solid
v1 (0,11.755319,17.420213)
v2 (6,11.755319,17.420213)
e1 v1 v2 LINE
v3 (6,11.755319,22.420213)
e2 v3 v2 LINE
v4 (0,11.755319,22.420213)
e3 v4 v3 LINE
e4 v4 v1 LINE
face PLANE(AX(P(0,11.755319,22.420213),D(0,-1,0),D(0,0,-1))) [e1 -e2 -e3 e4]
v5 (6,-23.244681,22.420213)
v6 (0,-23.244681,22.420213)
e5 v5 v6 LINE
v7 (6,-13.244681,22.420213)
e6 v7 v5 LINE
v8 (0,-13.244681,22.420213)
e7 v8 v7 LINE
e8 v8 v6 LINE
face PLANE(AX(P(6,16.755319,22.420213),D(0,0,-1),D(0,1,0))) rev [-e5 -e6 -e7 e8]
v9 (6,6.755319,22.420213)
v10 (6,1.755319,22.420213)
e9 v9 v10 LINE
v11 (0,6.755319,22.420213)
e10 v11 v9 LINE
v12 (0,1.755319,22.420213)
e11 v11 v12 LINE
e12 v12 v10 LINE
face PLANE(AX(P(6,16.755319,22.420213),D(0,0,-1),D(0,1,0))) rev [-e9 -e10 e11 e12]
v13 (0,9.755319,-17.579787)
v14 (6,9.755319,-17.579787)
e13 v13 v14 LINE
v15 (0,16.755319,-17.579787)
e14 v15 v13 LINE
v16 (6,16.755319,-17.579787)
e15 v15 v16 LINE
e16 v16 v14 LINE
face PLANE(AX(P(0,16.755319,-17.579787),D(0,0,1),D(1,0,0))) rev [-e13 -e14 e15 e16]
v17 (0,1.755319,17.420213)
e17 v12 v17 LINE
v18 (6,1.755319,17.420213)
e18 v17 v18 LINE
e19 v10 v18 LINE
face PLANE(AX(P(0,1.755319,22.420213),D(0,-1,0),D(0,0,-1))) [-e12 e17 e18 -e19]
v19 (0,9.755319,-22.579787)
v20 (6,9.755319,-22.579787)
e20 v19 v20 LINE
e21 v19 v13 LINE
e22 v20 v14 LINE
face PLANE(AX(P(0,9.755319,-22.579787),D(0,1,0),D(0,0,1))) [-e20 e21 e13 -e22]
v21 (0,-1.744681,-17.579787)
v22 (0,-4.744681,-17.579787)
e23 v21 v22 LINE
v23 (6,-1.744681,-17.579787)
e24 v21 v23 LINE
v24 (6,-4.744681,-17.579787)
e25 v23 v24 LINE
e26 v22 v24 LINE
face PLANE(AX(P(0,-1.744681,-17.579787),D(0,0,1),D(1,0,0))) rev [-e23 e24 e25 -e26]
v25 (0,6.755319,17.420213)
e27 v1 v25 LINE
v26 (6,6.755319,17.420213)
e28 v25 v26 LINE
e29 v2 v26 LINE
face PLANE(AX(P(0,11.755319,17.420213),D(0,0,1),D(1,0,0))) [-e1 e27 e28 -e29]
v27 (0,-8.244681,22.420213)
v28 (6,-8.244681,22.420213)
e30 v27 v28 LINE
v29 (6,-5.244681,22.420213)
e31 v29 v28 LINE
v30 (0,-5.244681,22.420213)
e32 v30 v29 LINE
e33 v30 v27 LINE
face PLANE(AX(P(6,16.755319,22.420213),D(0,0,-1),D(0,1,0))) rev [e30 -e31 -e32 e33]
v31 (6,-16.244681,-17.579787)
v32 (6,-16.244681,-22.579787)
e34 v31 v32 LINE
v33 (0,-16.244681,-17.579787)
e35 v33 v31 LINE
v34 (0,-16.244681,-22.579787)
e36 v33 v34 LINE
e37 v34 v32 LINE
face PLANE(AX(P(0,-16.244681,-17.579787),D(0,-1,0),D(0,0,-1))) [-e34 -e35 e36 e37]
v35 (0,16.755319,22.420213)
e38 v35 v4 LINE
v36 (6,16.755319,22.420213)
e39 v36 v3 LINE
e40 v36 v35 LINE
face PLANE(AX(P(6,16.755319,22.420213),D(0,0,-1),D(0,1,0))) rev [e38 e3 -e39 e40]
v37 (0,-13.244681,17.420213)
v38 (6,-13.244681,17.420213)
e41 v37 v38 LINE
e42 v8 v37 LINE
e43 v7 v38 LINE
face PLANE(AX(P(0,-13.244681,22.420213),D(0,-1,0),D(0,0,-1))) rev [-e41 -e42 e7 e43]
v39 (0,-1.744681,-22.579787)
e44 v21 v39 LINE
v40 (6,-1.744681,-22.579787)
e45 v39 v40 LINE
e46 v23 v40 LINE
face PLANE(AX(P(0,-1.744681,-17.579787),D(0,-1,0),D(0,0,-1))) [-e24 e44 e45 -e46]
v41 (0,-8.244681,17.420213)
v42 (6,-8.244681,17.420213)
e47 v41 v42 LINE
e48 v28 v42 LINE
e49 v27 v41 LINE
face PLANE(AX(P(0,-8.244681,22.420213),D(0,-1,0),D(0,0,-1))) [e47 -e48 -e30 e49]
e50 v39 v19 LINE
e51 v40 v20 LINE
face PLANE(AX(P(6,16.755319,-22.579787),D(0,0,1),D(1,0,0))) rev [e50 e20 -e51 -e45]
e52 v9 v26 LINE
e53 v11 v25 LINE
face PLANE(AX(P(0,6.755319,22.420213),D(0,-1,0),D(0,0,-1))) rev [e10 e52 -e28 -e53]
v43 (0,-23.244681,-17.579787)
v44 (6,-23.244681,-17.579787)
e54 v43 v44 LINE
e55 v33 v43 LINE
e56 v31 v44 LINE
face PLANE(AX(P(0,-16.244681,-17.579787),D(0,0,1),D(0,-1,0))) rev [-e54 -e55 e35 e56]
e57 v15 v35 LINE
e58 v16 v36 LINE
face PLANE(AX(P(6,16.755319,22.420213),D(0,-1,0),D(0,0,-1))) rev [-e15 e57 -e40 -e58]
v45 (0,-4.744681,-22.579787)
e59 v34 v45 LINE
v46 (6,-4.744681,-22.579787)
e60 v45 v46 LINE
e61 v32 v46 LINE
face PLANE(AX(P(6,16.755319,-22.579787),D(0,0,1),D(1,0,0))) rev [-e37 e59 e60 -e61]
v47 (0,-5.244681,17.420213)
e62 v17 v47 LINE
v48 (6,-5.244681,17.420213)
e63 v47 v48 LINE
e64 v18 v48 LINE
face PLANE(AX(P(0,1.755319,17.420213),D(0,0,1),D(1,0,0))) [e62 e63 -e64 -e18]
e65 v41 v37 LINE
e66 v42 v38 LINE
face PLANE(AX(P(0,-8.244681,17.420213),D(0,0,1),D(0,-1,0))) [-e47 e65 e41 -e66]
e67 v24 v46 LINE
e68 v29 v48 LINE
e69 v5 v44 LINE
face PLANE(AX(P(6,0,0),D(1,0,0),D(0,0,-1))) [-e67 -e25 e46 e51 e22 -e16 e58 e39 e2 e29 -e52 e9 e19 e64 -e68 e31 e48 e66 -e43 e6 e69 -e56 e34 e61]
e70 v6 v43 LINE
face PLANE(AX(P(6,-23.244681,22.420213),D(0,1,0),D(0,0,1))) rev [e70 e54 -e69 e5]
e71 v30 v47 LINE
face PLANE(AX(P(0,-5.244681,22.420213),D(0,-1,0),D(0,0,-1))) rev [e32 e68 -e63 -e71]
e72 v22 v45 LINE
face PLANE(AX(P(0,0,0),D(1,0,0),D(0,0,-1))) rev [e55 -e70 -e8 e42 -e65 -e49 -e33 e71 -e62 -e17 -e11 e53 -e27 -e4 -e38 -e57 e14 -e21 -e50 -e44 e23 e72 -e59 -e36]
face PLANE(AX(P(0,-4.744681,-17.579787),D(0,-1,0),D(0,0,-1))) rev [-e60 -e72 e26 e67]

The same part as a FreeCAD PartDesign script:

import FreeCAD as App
import Part
import Sketcher

V = App.Vector
Q = App.Units.Quantity


def add_polygon(sketch, points):
    """Adds a closed chain of lines whose ends are joined by coincident constraints."""
    first, n = sketch.GeometryCount, len(points)
    for a, b in zip(points, points[1:] + points[:1]):
        sketch.addGeometry(Part.LineSegment(App.Vector(*a, 0), App.Vector(*b, 0)), False)
    for i in range(n):
        sketch.addConstraint(Sketcher.Constraint("Coincident", first + i, 2, first + (i + 1) % n, 1))

doc = App.newDocument("Part")
body = doc.addObject("PartDesign::Body", "Body")

# Sketch on YZ plane
sketch1 = doc.addObject("Sketcher::SketchObject", "Sketch")
body.addObject(sketch1)
sketch1.AttachmentSupport = (doc.YZ_Plane, [""])
sketch1.MapMode = "FlatFace"
add_polygon(sketch1, [(17, 22), (-23, 22), (-23, -23), (17, -23)])  # lines 0-3
sketch1.addConstraint(Sketcher.Constraint("Horizontal", 0))
sketch1.addConstraint(Sketcher.Constraint("Vertical", 1))
sketch1.addConstraint(Sketcher.Constraint("Horizontal", 2))
sketch1.addConstraint(Sketcher.Constraint("Vertical", 3))
sketch1.addConstraint(Sketcher.Constraint("DistanceX", 0, 2, 0, 1, Q("40 mm")))
sketch1.addConstraint(Sketcher.Constraint("DistanceY", 1, 2, 1, 1, Q("45 mm")))
sketch1.addConstraint(Sketcher.Constraint("DistanceX", 0, 2, -1, 1, Q("23.244681 mm")))
sketch1.addConstraint(Sketcher.Constraint("DistanceY", -1, 1, 0, 2, Q("22.420213 mm")))
pad1 = doc.addObject("PartDesign::Pad", "Pad")
body.addObject(pad1)
pad1.Profile = sketch1
pad1.Length = 6

# Sketch on YZ plane
sketch2 = doc.addObject("Sketcher::SketchObject", "Sketch001")
body.addObject(sketch2)
sketch2.AttachmentSupport = (doc.YZ_Plane, [""])
sketch2.MapMode = "FlatFace"
sketch2.AttachmentOffset = App.Placement(V(0, 0, 6), App.Rotation())
add_polygon(sketch2, [(12, 22), (7, 22), (7, 17), (12, 17)])  # lines 0-3
add_polygon(sketch2, [(2, 22), (-5, 22), (-5, 17), (2, 17)])  # lines 4-7
add_polygon(sketch2, [(-8, 22), (-13, 22), (-13, 17), (-8, 17)])  # lines 8-11
sketch2.addConstraint(Sketcher.Constraint("Horizontal", 0))
sketch2.addConstraint(Sketcher.Constraint("Vertical", 1))
sketch2.addConstraint(Sketcher.Constraint("Horizontal", 2))
sketch2.addConstraint(Sketcher.Constraint("Vertical", 3))
sketch2.addConstraint(Sketcher.Constraint("Horizontal", 4))
sketch2.addConstraint(Sketcher.Constraint("Vertical", 5))
sketch2.addConstraint(Sketcher.Constraint("Horizontal", 6))
sketch2.addConstraint(Sketcher.Constraint("Vertical", 7))
sketch2.addConstraint(Sketcher.Constraint("Horizontal", 8))
sketch2.addConstraint(Sketcher.Constraint("Vertical", 9))
sketch2.addConstraint(Sketcher.Constraint("Horizontal", 10))
sketch2.addConstraint(Sketcher.Constraint("Vertical", 11))
sketch2.addConstraint(Sketcher.Constraint("Horizontal", 3, 2, 4, 2))
sketch2.addConstraint(Sketcher.Constraint("Horizontal", 2, 2, 5, 2))
sketch2.addConstraint(Sketcher.Constraint("Horizontal", 7, 2, 8, 2))
sketch2.addConstraint(Sketcher.Constraint("Horizontal", 6, 2, 9, 2))
sketch2.addConstraint(Sketcher.Constraint("Equal", 2, 8))
sketch2.addConstraint(Sketcher.Constraint("Equal", 10, 1))
sketch2.addConstraint(Sketcher.Constraint("DistanceX", 0, 2, 0, 1, Q("5 mm")))
sketch2.addConstraint(Sketcher.Constraint("DistanceX", 4, 2, 4, 1, Q("7 mm")))
sketch2.addConstraint(Sketcher.Constraint("DistanceX", 4, 2, 0, 2, Q("12 mm")))
sketch2.addConstraint(Sketcher.Constraint("DistanceX", 8, 2, 4, 2, Q("8 mm")))
sketch2.addConstraint(Sketcher.Constraint("DistanceX", -1, 1, 0, 2, Q("6.755319 mm")))
sketch2.addConstraint(Sketcher.Constraint("DistanceY", -1, 1, 0, 2, Q("22.420213 mm")))
pocket1 = doc.addObject("PartDesign::Pocket", "Pocket")
body.addObject(pocket1)
pocket1.Profile = sketch2
pocket1.Length = 6

# Sketch on YZ plane
sketch3 = doc.addObject("Sketcher::SketchObject", "Sketch002")
body.addObject(sketch3)
sketch3.AttachmentSupport = (doc.YZ_Plane, [""])
sketch3.MapMode = "FlatFace"
sketch3.AttachmentOffset = App.Placement(V(0, 0, 6), App.Rotation())
add_polygon(sketch3, [(16.8, -17.6), (9.8, -17.6), (9.8, -22.6), (16.8, -22.6)])  # lines 0-3
add_polygon(sketch3, [(-1.7, -17.6), (-4.7, -17.6), (-4.7, -22.6), (-1.7, -22.6)])  # lines 4-7
add_polygon(sketch3, [(-16.2, -17.6), (-23.2, -17.6), (-23.2, -22.6), (-16.2, -22.6)])  # lines 8-11
sketch3.addConstraint(Sketcher.Constraint("Horizontal", 0))
sketch3.addConstraint(Sketcher.Constraint("Vertical", 1))
sketch3.addConstraint(Sketcher.Constraint("Horizontal", 2))
sketch3.addConstraint(Sketcher.Constraint("Vertical", 3))
sketch3.addConstraint(Sketcher.Constraint("Horizontal", 4))
sketch3.addConstraint(Sketcher.Constraint("Vertical", 5))
sketch3.addConstraint(Sketcher.Constraint("Horizontal", 6))
sketch3.addConstraint(Sketcher.Constraint("Vertical", 7))
sketch3.addConstraint(Sketcher.Constraint("Horizontal", 8))
sketch3.addConstraint(Sketcher.Constraint("Vertical", 9))
sketch3.addConstraint(Sketcher.Constraint("Horizontal", 10))
sketch3.addConstraint(Sketcher.Constraint("Vertical", 11))
sketch3.addConstraint(Sketcher.Constraint("Horizontal", 3, 2, 4, 2))
sketch3.addConstraint(Sketcher.Constraint("Horizontal", 2, 2, 5, 2))
sketch3.addConstraint(Sketcher.Constraint("Horizontal", 7, 2, 8, 2))
sketch3.addConstraint(Sketcher.Constraint("Horizontal", 6, 2, 9, 2))
sketch3.addConstraint(Sketcher.Constraint("Equal", 2, 8))
sketch3.addConstraint(Sketcher.Constraint("DistanceX", 0, 2, 0, 1, Q("7 mm")))
sketch3.addConstraint(Sketcher.Constraint("DistanceX", 4, 2, 4, 1, Q("3 mm")))
sketch3.addConstraint(Sketcher.Constraint("DistanceY", 1, 2, 1, 1, Q("5 mm")))
sketch3.addConstraint(Sketcher.Constraint("DistanceX", 8, 2, 0, 2, Q("33 mm")))
sketch3.addConstraint(Sketcher.Constraint("DistanceX", 4, 2, 0, 2, Q("14.5 mm")))
sketch3.addConstraint(Sketcher.Constraint("DistanceX", -1, 1, 0, 2, Q("9.755319 mm")))
sketch3.addConstraint(Sketcher.Constraint("DistanceY", 0, 2, -1, 1, Q("17.579787 mm")))
pocket2 = doc.addObject("PartDesign::Pocket", "Pocket001")
body.addObject(pocket2)
pocket2.Profile = sketch3
pocket2.Length = 6

doc.recompute()
